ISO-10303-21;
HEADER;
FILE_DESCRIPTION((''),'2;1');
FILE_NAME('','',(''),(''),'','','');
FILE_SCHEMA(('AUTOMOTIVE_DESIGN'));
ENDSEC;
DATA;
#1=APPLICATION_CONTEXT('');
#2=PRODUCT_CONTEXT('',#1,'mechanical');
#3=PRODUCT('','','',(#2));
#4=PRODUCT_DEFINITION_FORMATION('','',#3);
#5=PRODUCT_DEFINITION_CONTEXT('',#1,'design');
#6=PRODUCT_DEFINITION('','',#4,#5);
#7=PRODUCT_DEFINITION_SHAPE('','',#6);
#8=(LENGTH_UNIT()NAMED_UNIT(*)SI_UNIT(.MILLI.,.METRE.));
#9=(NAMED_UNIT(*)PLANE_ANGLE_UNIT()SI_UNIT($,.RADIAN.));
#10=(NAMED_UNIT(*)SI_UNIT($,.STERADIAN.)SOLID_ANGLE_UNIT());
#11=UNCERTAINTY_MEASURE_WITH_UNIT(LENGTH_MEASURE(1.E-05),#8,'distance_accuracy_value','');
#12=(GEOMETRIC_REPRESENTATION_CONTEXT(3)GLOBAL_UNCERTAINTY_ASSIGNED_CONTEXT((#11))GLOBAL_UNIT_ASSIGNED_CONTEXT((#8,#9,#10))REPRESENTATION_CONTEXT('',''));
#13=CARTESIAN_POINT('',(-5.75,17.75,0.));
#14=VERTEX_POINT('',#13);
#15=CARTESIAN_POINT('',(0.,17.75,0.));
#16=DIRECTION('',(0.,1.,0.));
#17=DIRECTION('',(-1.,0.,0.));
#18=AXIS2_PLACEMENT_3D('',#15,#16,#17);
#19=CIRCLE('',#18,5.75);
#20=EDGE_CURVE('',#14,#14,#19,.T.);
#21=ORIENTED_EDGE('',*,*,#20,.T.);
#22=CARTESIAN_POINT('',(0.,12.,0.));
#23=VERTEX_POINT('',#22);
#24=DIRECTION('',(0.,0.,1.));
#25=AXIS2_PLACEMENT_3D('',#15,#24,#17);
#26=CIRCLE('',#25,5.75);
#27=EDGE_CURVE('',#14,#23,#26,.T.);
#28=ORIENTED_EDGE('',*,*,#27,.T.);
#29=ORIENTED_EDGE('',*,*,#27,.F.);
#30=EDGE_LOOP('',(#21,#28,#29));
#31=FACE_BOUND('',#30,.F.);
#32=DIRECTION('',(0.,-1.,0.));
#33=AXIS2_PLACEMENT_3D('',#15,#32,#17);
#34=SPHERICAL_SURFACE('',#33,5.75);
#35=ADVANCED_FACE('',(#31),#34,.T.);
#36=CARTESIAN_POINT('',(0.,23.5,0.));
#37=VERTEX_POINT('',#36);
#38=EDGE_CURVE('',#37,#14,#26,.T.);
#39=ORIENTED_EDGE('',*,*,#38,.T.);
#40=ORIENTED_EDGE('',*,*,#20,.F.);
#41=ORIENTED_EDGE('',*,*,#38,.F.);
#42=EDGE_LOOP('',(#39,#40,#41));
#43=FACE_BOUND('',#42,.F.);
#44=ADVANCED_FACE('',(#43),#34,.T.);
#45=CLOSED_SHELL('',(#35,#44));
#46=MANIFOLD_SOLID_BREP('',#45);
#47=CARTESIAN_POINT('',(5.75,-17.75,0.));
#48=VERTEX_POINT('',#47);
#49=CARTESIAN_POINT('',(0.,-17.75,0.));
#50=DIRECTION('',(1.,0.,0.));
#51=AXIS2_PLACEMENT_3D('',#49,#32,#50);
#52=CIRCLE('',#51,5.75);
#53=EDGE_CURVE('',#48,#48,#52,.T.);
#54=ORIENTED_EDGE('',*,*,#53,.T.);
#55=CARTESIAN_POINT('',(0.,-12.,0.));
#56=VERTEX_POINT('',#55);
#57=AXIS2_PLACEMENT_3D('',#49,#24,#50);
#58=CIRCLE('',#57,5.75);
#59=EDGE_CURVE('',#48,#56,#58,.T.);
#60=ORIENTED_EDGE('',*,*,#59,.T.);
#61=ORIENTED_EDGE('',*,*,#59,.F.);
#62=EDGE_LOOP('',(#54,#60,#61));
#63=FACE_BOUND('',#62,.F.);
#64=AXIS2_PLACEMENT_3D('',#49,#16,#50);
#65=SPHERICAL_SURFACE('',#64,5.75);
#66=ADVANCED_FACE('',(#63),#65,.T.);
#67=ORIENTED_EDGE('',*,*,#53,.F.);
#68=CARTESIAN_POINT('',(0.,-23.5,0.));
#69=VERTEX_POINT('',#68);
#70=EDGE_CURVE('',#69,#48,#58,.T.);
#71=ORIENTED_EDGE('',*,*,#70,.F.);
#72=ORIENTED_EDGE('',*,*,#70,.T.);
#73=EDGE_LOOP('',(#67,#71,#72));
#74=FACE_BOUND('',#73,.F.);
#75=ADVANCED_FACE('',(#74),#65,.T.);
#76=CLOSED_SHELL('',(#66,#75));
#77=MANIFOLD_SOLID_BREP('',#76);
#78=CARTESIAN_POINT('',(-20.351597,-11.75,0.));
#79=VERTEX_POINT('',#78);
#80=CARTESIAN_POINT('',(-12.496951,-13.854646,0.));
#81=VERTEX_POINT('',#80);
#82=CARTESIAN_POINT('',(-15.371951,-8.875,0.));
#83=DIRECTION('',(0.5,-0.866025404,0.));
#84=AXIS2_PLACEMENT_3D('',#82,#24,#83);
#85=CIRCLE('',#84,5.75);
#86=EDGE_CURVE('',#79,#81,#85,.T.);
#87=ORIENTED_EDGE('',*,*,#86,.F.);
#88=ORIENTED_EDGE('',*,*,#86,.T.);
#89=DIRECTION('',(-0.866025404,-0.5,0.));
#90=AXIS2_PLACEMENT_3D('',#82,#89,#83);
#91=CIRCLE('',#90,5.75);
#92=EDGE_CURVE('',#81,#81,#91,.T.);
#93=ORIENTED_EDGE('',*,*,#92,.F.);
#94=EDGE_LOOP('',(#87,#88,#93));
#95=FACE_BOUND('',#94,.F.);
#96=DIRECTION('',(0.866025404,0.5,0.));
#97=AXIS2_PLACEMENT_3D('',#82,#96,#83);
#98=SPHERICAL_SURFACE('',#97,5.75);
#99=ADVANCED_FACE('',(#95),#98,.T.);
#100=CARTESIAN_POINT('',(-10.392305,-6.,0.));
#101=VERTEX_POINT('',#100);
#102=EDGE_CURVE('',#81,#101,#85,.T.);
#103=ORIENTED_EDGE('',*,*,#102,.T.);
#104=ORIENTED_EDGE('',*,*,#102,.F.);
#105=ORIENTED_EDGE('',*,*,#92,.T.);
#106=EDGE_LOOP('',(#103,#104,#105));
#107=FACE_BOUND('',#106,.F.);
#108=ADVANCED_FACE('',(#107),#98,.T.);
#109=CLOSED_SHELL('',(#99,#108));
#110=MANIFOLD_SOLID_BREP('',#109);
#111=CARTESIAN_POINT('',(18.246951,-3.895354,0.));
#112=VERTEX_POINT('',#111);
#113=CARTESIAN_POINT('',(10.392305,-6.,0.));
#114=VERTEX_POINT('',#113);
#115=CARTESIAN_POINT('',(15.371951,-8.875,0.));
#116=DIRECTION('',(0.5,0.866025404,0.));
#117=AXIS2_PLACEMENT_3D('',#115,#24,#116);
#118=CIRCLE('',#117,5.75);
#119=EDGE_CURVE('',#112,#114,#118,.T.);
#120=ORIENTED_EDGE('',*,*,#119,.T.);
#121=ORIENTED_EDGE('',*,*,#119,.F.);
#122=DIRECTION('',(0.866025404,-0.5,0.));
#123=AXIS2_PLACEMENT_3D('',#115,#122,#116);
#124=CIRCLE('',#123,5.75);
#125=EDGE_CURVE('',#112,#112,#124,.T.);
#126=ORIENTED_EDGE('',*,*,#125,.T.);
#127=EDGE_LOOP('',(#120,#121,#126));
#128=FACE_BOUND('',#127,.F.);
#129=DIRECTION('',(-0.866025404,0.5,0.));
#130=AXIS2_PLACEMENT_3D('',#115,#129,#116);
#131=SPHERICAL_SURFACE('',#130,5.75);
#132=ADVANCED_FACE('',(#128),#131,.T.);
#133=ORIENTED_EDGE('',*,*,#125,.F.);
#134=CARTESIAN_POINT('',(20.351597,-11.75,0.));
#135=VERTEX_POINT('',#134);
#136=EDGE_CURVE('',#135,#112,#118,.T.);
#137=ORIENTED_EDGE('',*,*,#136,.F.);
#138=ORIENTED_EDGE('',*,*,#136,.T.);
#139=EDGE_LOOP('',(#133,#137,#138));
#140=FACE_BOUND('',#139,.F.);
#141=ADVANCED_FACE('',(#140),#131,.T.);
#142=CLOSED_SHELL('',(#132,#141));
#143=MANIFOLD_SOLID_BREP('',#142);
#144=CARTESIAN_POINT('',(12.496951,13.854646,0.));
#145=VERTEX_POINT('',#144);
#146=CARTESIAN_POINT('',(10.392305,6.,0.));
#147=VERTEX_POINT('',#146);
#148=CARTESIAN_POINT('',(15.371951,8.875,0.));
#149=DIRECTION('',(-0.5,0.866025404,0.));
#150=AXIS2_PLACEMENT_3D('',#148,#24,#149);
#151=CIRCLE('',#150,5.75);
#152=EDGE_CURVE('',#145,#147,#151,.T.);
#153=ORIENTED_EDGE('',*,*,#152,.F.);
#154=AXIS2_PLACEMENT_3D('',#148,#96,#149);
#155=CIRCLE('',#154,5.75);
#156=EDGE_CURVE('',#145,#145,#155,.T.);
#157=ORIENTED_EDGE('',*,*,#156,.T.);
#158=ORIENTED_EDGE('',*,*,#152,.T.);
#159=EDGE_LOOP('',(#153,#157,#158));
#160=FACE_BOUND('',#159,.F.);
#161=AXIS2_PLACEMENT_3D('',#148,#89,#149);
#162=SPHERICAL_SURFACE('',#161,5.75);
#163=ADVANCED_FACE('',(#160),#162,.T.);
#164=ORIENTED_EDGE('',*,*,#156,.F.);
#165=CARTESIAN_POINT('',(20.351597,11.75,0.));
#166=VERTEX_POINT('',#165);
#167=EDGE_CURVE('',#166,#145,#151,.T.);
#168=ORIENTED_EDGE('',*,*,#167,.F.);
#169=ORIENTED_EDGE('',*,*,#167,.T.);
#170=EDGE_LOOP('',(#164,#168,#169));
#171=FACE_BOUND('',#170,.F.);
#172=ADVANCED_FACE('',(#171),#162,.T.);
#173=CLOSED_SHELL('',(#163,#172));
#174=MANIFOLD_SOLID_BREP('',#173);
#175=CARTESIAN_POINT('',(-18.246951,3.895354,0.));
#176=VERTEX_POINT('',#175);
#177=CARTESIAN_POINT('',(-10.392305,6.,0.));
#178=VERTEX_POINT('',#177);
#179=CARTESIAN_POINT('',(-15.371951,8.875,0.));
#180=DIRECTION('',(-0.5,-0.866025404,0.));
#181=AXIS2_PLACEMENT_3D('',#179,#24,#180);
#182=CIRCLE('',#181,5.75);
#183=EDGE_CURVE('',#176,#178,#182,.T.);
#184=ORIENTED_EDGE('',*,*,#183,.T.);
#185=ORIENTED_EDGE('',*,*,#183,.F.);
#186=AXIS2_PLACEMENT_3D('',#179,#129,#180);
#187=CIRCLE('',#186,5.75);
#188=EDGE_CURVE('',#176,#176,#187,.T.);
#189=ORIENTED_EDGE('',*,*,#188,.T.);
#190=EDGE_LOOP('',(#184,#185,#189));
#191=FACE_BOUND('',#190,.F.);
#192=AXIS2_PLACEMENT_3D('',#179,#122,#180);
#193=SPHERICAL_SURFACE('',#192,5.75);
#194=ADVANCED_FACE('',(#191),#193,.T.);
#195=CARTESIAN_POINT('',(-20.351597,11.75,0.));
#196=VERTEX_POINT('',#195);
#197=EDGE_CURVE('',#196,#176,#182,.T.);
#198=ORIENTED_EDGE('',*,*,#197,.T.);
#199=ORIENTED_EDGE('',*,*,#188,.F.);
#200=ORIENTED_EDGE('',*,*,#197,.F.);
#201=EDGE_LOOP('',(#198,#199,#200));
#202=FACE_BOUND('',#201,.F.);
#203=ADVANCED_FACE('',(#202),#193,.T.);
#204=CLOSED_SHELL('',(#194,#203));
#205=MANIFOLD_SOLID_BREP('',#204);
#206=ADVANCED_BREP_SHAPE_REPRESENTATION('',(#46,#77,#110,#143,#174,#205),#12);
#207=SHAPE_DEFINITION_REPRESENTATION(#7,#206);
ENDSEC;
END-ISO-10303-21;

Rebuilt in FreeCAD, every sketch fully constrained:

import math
import FreeCAD as App
import Part
import Sketcher

doc = App.newDocument("Part")
body = doc.addObject("PartDesign::Body", "Body")
body.AllowCompound = True

# Sketch on XY plane
sketch1 = doc.addObject("Sketcher::SketchObject", "Sketch")
body.addObject(sketch1)
sketch1.AttachmentSupport = (doc.XY_Plane, [""])
sketch1.MapMode = "FlatFace"
sketch1.addGeometry([
    Part.LineSegment(App.Vector(0, -12, 0), App.Vector(0, -24, 0)),
    Part.ArcOfCircle(Part.Circle(App.Vector(0, -18, 0), App.Vector(0, 0, 1), 6), math.radians(-90), math.radians(90)),
], False)
sketch1.addConstraint([
    Sketcher.Constraint("Coincident", 0, 1, 1, 2),
    Sketcher.Constraint("Coincident", 1, 1, 0, 2),
    Sketcher.Constraint("Vertical", 0),
    Sketcher.Constraint("PointOnObject", 1, 3, -2),
    Sketcher.Constraint("PointOnObject", 0, 1, -2),
    Sketcher.Constraint("Radius", 1, 5.75),
    Sketcher.Constraint("DistanceY", 0, 1, -1, 1, 12.0),
])
revolution = doc.addObject("PartDesign::Revolution", "Revolution")
body.addObject(revolution)
revolution.Profile = sketch1
revolution.ReferenceAxis = (sketch1, ["V_Axis"])
revolution.Angle = 360
doc.recompute()

polarpattern = doc.addObject("PartDesign::PolarPattern", "PolarPattern")
body.addObject(polarpattern)
polarpattern.Originals = [revolution]
polarpattern.Axis = (doc.Z_Axis, [""])
polarpattern.Angle = 360
polarpattern.Occurrences = 6
body.Tip = polarpattern

doc.recompute()
